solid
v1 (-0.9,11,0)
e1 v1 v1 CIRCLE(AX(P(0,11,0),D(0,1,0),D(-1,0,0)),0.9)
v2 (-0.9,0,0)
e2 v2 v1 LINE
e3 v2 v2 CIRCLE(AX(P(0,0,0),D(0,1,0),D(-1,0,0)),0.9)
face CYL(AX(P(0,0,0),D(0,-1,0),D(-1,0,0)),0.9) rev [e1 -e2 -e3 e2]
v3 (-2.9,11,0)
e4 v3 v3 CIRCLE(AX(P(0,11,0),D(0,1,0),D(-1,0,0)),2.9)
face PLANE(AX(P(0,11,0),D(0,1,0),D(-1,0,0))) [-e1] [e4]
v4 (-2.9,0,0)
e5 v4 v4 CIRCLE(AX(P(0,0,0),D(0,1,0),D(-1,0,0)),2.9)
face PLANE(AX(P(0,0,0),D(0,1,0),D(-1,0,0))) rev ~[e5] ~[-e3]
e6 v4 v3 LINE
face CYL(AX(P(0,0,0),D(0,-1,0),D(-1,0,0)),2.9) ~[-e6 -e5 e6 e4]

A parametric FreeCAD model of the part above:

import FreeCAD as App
import Part
import Sketcher

V = App.Vector
Q = App.Units.Quantity

doc = App.newDocument("Part")
body = doc.addObject("PartDesign::Body", "Body")

# Sketch on XZ plane
sketch1 = body.newObject("Sketcher::SketchObject", "Sketch")
sketch1.AttachmentSupport = (doc.getObject("XZ_Plane"), [""])
sketch1.MapMode = "FlatFace"
sketch1.addGeometry([
    Part.Circle(V(0, 0, 0), V(0, 0, 1), 2.9),
    Part.Circle(V(0, 0, 0), V(0, 0, 1), 0.9),
], False)
sketch1.addConstraint([
    Sketcher.Constraint("Coincident", 0, 3, -1, 1),
    Sketcher.Constraint("Coincident", 1, 3, -1, 1),
    Sketcher.Constraint("Diameter", 0, Q("5.8 mm")),
    Sketcher.Constraint("Diameter", 1, Q("1.8 mm")),
])
pad1 = body.newObject("PartDesign::Pad", "Pad")
pad1.Profile = sketch1
pad1.Length = 11
pad1.Reversed = True

doc.recompute()
